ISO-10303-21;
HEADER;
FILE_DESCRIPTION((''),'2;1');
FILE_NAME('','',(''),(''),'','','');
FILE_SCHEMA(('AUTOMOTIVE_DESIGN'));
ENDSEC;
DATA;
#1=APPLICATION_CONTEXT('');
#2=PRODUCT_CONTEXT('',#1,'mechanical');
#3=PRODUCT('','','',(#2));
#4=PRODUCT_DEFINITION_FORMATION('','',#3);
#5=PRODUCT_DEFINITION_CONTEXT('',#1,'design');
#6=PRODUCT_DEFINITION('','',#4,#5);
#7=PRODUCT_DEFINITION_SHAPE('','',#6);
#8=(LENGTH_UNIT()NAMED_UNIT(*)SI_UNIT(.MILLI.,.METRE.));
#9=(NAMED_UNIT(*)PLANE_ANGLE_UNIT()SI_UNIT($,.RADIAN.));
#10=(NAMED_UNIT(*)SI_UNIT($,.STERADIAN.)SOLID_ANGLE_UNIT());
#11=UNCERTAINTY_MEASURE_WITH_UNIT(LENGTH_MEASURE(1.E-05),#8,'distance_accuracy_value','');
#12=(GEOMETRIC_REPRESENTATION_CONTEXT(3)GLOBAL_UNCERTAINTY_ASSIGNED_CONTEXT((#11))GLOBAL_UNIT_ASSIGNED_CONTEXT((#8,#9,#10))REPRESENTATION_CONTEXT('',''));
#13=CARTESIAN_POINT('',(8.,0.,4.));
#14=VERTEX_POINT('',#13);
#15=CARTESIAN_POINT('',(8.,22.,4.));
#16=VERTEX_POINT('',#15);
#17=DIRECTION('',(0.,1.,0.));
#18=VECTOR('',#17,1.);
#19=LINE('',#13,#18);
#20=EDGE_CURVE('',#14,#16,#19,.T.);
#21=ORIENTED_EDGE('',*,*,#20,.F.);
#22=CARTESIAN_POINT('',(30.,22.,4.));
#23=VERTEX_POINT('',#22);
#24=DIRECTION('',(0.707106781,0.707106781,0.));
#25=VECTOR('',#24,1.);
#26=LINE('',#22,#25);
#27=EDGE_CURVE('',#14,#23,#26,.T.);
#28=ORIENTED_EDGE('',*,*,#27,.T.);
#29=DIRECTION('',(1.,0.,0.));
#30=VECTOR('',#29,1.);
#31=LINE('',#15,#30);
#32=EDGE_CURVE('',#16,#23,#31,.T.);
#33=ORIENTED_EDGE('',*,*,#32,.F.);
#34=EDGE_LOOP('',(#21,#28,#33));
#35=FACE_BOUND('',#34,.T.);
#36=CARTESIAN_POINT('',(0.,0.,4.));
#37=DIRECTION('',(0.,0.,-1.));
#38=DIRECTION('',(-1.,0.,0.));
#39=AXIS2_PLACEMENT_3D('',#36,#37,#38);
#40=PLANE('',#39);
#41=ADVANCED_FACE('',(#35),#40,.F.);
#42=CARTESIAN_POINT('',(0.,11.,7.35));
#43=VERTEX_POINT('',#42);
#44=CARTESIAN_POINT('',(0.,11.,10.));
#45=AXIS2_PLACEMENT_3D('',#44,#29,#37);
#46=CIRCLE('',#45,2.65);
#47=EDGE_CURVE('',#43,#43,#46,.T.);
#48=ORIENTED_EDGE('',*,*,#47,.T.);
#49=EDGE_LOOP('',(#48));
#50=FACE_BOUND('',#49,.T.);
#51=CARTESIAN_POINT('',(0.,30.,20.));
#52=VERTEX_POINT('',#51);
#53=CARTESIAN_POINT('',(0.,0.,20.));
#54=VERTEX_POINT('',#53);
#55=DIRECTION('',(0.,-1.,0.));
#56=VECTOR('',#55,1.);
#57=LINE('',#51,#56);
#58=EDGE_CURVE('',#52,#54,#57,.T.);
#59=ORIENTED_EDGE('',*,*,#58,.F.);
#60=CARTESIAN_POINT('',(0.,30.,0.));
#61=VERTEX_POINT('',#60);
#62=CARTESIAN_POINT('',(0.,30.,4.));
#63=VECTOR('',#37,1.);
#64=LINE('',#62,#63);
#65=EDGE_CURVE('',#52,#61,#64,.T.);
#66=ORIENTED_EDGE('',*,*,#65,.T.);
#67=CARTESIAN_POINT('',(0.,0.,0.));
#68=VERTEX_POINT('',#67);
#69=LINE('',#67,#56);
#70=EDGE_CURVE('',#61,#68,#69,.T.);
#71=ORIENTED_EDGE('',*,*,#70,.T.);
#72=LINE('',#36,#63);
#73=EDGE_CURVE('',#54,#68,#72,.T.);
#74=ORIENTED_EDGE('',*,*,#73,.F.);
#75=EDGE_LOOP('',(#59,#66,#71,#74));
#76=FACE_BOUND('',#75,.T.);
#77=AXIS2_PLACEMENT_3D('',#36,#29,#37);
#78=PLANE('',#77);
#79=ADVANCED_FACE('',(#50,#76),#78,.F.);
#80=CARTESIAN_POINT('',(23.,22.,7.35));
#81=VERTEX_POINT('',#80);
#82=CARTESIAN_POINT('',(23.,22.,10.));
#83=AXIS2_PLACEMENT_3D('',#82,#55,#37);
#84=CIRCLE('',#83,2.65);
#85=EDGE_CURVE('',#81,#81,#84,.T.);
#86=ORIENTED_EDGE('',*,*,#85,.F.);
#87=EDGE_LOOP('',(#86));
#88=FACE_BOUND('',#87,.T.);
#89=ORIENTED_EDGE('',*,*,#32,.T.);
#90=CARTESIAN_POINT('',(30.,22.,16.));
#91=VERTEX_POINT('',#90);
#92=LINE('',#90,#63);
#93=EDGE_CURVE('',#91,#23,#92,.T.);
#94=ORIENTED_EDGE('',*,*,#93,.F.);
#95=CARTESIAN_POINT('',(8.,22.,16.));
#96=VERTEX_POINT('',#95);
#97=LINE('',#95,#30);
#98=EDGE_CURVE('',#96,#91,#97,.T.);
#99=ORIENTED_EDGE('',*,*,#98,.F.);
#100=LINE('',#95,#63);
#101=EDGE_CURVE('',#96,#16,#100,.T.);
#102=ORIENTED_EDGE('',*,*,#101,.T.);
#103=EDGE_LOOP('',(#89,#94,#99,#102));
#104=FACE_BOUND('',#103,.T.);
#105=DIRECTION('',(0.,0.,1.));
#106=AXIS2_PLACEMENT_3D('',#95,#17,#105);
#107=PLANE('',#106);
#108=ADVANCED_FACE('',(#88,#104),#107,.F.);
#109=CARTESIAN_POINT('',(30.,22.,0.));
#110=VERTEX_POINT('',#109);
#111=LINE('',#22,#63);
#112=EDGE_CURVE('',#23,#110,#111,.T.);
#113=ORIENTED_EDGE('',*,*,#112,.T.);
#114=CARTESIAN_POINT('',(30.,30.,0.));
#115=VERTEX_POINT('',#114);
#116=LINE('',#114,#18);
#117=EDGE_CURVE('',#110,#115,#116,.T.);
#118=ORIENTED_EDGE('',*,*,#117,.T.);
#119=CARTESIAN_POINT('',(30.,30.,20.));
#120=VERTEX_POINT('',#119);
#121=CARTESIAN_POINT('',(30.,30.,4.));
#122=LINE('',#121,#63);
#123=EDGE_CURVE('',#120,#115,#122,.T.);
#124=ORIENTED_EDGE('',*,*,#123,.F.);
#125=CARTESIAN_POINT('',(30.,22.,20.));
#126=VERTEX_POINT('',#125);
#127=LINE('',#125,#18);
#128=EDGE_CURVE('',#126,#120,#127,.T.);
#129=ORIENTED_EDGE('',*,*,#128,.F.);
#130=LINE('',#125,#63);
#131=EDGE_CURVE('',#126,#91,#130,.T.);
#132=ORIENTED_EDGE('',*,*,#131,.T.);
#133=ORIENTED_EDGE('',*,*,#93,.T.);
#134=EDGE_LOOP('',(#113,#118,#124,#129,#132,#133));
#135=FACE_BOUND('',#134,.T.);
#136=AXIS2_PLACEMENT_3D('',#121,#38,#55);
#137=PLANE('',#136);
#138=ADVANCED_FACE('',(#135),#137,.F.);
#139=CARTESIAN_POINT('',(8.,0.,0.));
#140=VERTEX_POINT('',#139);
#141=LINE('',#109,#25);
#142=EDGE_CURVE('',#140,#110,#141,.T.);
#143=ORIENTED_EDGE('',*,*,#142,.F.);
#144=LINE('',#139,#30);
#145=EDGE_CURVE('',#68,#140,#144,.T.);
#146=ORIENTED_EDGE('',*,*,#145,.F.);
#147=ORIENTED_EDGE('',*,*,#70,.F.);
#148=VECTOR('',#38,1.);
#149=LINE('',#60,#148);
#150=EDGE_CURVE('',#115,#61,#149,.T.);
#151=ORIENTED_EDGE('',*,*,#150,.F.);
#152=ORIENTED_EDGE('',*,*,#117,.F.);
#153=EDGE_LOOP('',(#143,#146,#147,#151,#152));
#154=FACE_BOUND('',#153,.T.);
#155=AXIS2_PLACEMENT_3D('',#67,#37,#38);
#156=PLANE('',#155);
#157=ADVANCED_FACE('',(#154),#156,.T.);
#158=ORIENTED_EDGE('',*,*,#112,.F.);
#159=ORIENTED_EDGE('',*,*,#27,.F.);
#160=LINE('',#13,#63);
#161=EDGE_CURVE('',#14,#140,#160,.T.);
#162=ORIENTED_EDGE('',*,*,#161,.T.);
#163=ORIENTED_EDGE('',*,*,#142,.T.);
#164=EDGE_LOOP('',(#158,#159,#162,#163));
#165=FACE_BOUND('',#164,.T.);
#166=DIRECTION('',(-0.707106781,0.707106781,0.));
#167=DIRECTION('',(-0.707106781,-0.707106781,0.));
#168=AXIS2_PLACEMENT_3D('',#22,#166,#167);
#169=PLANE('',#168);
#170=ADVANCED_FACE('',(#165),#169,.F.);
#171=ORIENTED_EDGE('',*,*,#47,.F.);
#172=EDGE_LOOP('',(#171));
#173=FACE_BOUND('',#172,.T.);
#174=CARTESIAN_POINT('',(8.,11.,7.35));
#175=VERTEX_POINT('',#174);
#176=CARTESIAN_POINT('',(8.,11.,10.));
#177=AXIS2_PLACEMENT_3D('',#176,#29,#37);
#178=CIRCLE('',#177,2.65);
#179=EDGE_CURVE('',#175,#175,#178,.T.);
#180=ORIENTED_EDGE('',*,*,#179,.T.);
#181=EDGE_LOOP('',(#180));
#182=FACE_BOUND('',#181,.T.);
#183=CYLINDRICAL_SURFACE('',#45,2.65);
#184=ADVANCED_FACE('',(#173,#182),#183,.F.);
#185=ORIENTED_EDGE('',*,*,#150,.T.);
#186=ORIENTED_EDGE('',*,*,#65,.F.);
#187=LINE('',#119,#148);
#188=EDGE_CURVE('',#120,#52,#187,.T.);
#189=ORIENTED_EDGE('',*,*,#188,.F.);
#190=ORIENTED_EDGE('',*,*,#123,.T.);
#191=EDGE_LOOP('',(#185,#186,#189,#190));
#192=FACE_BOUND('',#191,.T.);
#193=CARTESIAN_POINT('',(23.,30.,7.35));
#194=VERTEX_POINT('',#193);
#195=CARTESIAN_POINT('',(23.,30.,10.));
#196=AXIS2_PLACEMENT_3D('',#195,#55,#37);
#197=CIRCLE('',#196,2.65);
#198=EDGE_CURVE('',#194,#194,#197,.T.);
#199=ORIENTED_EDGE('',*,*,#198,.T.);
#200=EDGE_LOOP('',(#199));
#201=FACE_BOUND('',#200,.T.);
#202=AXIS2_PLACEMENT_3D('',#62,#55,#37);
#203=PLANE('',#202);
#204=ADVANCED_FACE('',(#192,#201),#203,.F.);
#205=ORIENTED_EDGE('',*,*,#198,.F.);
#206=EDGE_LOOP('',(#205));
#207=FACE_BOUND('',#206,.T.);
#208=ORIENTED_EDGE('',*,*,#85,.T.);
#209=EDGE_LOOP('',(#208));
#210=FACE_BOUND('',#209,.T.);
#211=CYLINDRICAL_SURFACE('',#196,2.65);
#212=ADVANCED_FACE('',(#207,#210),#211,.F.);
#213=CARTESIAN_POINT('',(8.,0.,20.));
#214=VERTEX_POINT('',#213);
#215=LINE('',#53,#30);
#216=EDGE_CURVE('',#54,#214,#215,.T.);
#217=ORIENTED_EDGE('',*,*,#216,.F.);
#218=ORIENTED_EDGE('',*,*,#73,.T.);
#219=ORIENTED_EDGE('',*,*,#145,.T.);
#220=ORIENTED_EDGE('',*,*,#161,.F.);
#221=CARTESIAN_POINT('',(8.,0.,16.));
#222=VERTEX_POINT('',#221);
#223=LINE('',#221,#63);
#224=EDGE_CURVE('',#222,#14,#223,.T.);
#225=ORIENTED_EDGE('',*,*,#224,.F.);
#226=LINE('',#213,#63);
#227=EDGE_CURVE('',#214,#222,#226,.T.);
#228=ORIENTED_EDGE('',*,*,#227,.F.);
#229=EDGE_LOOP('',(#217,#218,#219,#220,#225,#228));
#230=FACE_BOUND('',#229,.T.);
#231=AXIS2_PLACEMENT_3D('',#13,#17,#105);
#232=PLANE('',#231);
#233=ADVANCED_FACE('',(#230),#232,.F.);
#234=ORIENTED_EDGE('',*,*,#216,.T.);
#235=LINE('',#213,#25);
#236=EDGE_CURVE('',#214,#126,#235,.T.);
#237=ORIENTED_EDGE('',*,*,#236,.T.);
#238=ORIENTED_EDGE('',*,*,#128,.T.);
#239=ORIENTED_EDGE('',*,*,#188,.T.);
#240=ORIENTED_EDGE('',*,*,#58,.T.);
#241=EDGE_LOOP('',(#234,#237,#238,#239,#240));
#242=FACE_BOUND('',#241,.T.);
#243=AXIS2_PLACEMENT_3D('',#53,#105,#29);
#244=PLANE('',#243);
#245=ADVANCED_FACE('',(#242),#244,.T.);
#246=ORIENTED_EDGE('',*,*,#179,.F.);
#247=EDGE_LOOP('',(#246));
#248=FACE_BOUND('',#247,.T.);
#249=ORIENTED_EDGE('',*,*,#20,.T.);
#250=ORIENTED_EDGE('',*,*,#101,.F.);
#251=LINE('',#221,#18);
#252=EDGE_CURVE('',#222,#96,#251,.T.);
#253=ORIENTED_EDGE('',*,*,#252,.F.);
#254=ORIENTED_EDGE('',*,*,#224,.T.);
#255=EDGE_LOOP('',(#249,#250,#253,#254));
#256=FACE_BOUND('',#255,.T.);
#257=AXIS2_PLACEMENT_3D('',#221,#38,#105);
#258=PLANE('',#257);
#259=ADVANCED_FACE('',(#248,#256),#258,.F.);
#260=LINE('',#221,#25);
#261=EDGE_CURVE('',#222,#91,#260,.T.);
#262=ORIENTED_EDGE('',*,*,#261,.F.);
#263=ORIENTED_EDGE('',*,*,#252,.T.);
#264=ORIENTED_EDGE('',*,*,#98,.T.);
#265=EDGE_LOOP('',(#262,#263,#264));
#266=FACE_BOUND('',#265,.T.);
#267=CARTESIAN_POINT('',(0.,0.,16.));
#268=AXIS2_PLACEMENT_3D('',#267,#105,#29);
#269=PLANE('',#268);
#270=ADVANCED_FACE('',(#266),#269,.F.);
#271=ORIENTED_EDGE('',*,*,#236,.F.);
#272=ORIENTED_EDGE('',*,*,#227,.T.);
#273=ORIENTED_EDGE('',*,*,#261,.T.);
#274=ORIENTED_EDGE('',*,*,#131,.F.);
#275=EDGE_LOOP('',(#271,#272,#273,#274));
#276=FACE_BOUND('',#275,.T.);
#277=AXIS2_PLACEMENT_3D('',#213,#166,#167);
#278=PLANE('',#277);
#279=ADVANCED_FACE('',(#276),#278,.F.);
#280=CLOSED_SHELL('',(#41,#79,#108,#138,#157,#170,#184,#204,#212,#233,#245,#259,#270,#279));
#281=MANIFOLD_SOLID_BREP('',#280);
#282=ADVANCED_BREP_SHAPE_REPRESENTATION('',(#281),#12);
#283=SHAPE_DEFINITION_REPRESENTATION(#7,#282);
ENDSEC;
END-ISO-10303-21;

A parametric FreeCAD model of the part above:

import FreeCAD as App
import Part
import Sketcher

V = App.Vector
Q = App.Units.Quantity

doc = App.newDocument("Part")
params = doc.addObject("Spreadsheet::Sheet", "Params")
for row, (alias, value) in enumerate([
    ("sketch1_width", "8 mm"),
    ("sketch1_width2", "30 mm"),
    ("pad1_length", "4 mm"),
    ("sketch2_width", "8 mm"),
    ("sketch2_width2", "22 mm"),
    ("pad2_length", "12 mm"),
    ("sketch3_width", "8 mm"),
    ("sketch3_width2", "30 mm"),
    ("pad3_length", "4 mm"),
    ("sketch4_diameter", "5.3 mm"),
    ("pocket1_length", "8 mm"),
    ("sketch5_diameter", "5.3 mm"),
    ("pocket2_length", "8 mm"),
], start=1):
    params.set(f"A{row}", alias)
    params.set(f"B{row}", "=" + value)
    params.setAlias(f"B{row}", alias)

body = doc.addObject("PartDesign::Body", "Body")

# Sketch on XY plane
sketch1 = body.newObject("Sketcher::SketchObject", "Sketch")
sketch1.AttachmentSupport = (doc.getObject("XY_Plane"), [""])
sketch1.MapMode = "FlatFace"
sketch1.addGeometry(Part.LineSegment(V(0, 30, 0), V(0, 0, 0)), False)
sketch1.addGeometry(Part.LineSegment(V(0, 0, 0), V(8, 0, 0)), False)
sketch1.addGeometry(Part.LineSegment(V(8, 0, 0), V(30, 22, 0)), False)
sketch1.addGeometry(Part.LineSegment(V(30, 22, 0), V(30, 30, 0)), False)
sketch1.addGeometry(Part.LineSegment(V(30, 30, 0), V(0, 30, 0)), False)
sketch1.addConstraint(Sketcher.Constraint("Coincident", 0, 2, 1, 1))
sketch1.addConstraint(Sketcher.Constraint("Coincident", 1, 2, 2, 1))
sketch1.addConstraint(Sketcher.Constraint("Coincident", 2, 2, 3, 1))
sketch1.addConstraint(Sketcher.Constraint("Coincident", 3, 2, 4, 1))
sketch1.addConstraint(Sketcher.Constraint("Coincident", 4, 2, 0, 1))
sketch1.addConstraint(Sketcher.Constraint("Vertical", 0))
sketch1.addConstraint(Sketcher.Constraint("Horizontal", 1))
sketch1.addConstraint(Sketcher.Constraint("Vertical", 3))
sketch1.addConstraint(Sketcher.Constraint("Horizontal", 4))
sketch1.addConstraint(Sketcher.Constraint("Coincident", 0, 2, -1, 1))
sketch1.addConstraint(Sketcher.Constraint("Equal", 4, 0))
sketch1.addConstraint(Sketcher.Constraint("Equal", 1, 3))
sketch1.addConstraint(Sketcher.Constraint("DistanceX", 1, 1, 1, 2, Q("8 mm")))
sketch1.addConstraint(Sketcher.Constraint("DistanceX", 4, 2, 4, 1, Q("30 mm")))
sketch1.setExpression("Constraints[12]", "Params.sketch1_width")
sketch1.setExpression("Constraints[13]", "Params.sketch1_width2")
pad1 = body.newObject("PartDesign::Pad", "Pad")
pad1.Profile = sketch1
pad1.setExpression("Length", "Params.pad1_length")

# Sketch on XY plane
sketch2 = body.newObject("Sketcher::SketchObject", "Sketch001")
sketch2.AttachmentSupport = (doc.getObject("XY_Plane"), [""])
sketch2.MapMode = "FlatFace"
sketch2.AttachmentOffset = App.Placement(V(0, 0, 4), App.Rotation())
sketch2.addGeometry(Part.LineSegment(V(0, 0, 0), V(8, 0, 0)), False)
sketch2.addGeometry(Part.LineSegment(V(8, 0, 0), V(8, 22, 0)), False)
sketch2.addGeometry(Part.LineSegment(V(8, 22, 0), V(30, 22, 0)), False)
sketch2.addGeometry(Part.LineSegment(V(30, 22, 0), V(30, 30, 0)), False)
sketch2.addGeometry(Part.LineSegment(V(30, 30, 0), V(0, 30, 0)), False)
sketch2.addGeometry(Part.LineSegment(V(0, 30, 0), V(0, 0, 0)), False)
sketch2.addConstraint(Sketcher.Constraint("Coincident", 0, 2, 1, 1))
sketch2.addConstraint(Sketcher.Constraint("Coincident", 1, 2, 2, 1))
sketch2.addConstraint(Sketcher.Constraint("Coincident", 2, 2, 3, 1))
sketch2.addConstraint(Sketcher.Constraint("Coincident", 3, 2, 4, 1))
sketch2.addConstraint(Sketcher.Constraint("Coincident", 4, 2, 5, 1))
sketch2.addConstraint(Sketcher.Constraint("Coincident", 5, 2, 0, 1))
sketch2.addConstraint(Sketcher.Constraint("Horizontal", 0))
sketch2.addConstraint(Sketcher.Constraint("Vertical", 1))
sketch2.addConstraint(Sketcher.Constraint("Horizontal", 2))
sketch2.addConstraint(Sketcher.Constraint("Vertical", 3))
sketch2.addConstraint(Sketcher.Constraint("Horizontal", 4))
sketch2.addConstraint(Sketcher.Constraint("Vertical", 5))
sketch2.addConstraint(Sketcher.Constraint("Coincident", 5, 2, -1, 1))
sketch2.addConstraint(Sketcher.Constraint("Equal", 2, 1))
sketch2.addConstraint(Sketcher.Constraint("Equal", 0, 3))
sketch2.addConstraint(Sketcher.Constraint("DistanceX", 0, 1, 0, 2, Q("8 mm")))
sketch2.addConstraint(Sketcher.Constraint("DistanceX", 2, 1, 2, 2, Q("22 mm")))
sketch2.setExpression("Constraints[15]", "Params.sketch2_width")
sketch2.setExpression("Constraints[16]", "Params.sketch2_width2")
pad2 = body.newObject("PartDesign::Pad", "Pad001")
pad2.Profile = sketch2
pad2.setExpression("Length", "Params.pad2_length")

# Sketch on XY plane
sketch3 = body.newObject("Sketcher::SketchObject", "Sketch002")
sketch3.AttachmentSupport = (doc.getObject("XY_Plane"), [""])
sketch3.MapMode = "FlatFace"
sketch3.AttachmentOffset = App.Placement(V(0, 0, 16), App.Rotation())
sketch3.addGeometry(Part.LineSegment(V(0, 30, 0), V(0, 0, 0)), False)
sketch3.addGeometry(Part.LineSegment(V(0, 0, 0), V(8, 0, 0)), False)
sketch3.addGeometry(Part.LineSegment(V(8, 0, 0), V(30, 22, 0)), False)
sketch3.addGeometry(Part.LineSegment(V(30, 22, 0), V(30, 30, 0)), False)
sketch3.addGeometry(Part.LineSegment(V(30, 30, 0), V(0, 30, 0)), False)
sketch3.addConstraint(Sketcher.Constraint("Coincident", 0, 2, 1, 1))
sketch3.addConstraint(Sketcher.Constraint("Coincident", 1, 2, 2, 1))
sketch3.addConstraint(Sketcher.Constraint("Coincident", 2, 2, 3, 1))
sketch3.addConstraint(Sketcher.Constraint("Coincident", 3, 2, 4, 1))
sketch3.addConstraint(Sketcher.Constraint("Coincident", 4, 2, 0, 1))
sketch3.addConstraint(Sketcher.Constraint("Vertical", 0))
sketch3.addConstraint(Sketcher.Constraint("Horizontal", 1))
sketch3.addConstraint(Sketcher.Constraint("Vertical", 3))
sketch3.addConstraint(Sketcher.Constraint("Horizontal", 4))
sketch3.addConstraint(Sketcher.Constraint("Coincident", 0, 2, -1, 1))
sketch3.addConstraint(Sketcher.Constraint("Equal", 4, 0))
sketch3.addConstraint(Sketcher.Constraint("Equal", 1, 3))
sketch3.addConstraint(Sketcher.Constraint("DistanceX", 1, 1, 1, 2, Q("8 mm")))
sketch3.addConstraint(Sketcher.Constraint("DistanceX", 4, 2, 4, 1, Q("30 mm")))
sketch3.setExpression("Constraints[12]", "Params.sketch3_width")
sketch3.setExpression("Constraints[13]", "Params.sketch3_width2")
pad3 = body.newObject("PartDesign::Pad", "Pad002")
pad3.Profile = sketch3
pad3.setExpression("Length", "Params.pad3_length")

# Sketch on YZ plane
sketch4 = body.newObject("Sketcher::SketchObject", "Sketch003")
sketch4.AttachmentSupport = (doc.getObject("YZ_Plane"), [""])
sketch4.MapMode = "FlatFace"
sketch4.AttachmentOffset = App.Placement(V(0, 0, 8), App.Rotation())
sketch4.addGeometry(Part.Circle(V(11, 10, 0), V(0, 0, 1), 2.6), False)
sketch4.addConstraint(Sketcher.Constraint("Diameter", 0, Q("5.3 mm")))
sketch4.addConstraint(Sketcher.Constraint("DistanceX", -1, 1, 0, 3, Q("11 mm")))
sketch4.addConstraint(Sketcher.Constraint("DistanceY", -1, 1, 0, 3, Q("10 mm")))
sketch4.setExpression("Constraints[0]", "Params.sketch4_diameter")
pocket1 = body.newObject("PartDesign::Pocket", "Pocket")
pocket1.Profile = sketch4
pocket1.setExpression("Length", "Params.pocket1_length")

# Sketch on XZ plane
sketch5 = body.newObject("Sketcher::SketchObject", "Sketch004")
sketch5.AttachmentSupport = (doc.getObject("XZ_Plane"), [""])
sketch5.MapMode = "FlatFace"
sketch5.AttachmentOffset = App.Placement(V(0, 0, -22), App.Rotation())
sketch5.addGeometry(Part.Circle(V(23, 10, 0), V(0, 0, 1), 2.6), False)
sketch5.addConstraint(Sketcher.Constraint("Diameter", 0, Q("5.3 mm")))
sketch5.addConstraint(Sketcher.Constraint("DistanceX", -1, 1, 0, 3, Q("23 mm")))
sketch5.addConstraint(Sketcher.Constraint("DistanceY", -1, 1, 0, 3, Q("10 mm")))
sketch5.setExpression("Constraints[0]", "Params.sketch5_diameter")
pocket2 = body.newObject("PartDesign::Pocket", "Pocket001")
pocket2.Profile = sketch5
pocket2.setExpression("Length", "Params.pocket2_length")

doc.recompute()
